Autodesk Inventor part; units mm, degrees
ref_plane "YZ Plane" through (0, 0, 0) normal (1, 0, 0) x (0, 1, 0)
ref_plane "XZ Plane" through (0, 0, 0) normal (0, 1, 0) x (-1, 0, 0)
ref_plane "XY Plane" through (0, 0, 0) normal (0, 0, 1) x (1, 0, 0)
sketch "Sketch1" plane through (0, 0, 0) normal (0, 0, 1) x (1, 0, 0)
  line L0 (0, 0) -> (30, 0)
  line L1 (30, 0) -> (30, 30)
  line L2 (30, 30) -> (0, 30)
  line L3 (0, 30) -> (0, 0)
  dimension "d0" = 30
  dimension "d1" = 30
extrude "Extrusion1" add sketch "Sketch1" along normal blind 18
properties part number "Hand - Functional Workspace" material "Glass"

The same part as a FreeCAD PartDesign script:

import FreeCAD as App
import Part
import Sketcher
from FreeCAD import Vector


def add_polygon(sketch, points):
    """Adds a closed chain of lines whose ends are joined by coincident constraints."""
    first, n = sketch.GeometryCount, len(points)
    for a, b in zip(points, points[1:] + points[:1]):
        sketch.addGeometry(Part.LineSegment(App.Vector(*a, 0), App.Vector(*b, 0)), False)
    for i in range(n):
        sketch.addConstraint(Sketcher.Constraint("Coincident", first + i, 2, first + (i + 1) % n, 1))

doc = App.newDocument("Part")
body = doc.addObject("PartDesign::Body", "Body")

sketch1 = body.newObject("Sketcher::SketchObject", "Sketch")
sketch1.AttachmentSupport = (doc.getObject("XY_Plane"), [""])
sketch1.MapMode = "FlatFace"
add_polygon(sketch1, [(0, 30), (0, 0), (30, 0), (30, 30)])
sketch1.addConstraint([
    Sketcher.Constraint("Vertical", 0),
    Sketcher.Constraint("Horizontal", 1),
    Sketcher.Constraint("Vertical", 2),
    Sketcher.Constraint("Horizontal", 3),
    Sketcher.Constraint("Coincident", 0, 2, -1, 1),
    Sketcher.Constraint("Equal", 3, 0),
    Sketcher.Constraint("DistanceX", 1, 1, 1, 2, 30.0),
])
pad1 = body.newObject("PartDesign::Pad", "Pad")
pad1.Profile = sketch1
pad1.Length = 18

doc.recompute()
